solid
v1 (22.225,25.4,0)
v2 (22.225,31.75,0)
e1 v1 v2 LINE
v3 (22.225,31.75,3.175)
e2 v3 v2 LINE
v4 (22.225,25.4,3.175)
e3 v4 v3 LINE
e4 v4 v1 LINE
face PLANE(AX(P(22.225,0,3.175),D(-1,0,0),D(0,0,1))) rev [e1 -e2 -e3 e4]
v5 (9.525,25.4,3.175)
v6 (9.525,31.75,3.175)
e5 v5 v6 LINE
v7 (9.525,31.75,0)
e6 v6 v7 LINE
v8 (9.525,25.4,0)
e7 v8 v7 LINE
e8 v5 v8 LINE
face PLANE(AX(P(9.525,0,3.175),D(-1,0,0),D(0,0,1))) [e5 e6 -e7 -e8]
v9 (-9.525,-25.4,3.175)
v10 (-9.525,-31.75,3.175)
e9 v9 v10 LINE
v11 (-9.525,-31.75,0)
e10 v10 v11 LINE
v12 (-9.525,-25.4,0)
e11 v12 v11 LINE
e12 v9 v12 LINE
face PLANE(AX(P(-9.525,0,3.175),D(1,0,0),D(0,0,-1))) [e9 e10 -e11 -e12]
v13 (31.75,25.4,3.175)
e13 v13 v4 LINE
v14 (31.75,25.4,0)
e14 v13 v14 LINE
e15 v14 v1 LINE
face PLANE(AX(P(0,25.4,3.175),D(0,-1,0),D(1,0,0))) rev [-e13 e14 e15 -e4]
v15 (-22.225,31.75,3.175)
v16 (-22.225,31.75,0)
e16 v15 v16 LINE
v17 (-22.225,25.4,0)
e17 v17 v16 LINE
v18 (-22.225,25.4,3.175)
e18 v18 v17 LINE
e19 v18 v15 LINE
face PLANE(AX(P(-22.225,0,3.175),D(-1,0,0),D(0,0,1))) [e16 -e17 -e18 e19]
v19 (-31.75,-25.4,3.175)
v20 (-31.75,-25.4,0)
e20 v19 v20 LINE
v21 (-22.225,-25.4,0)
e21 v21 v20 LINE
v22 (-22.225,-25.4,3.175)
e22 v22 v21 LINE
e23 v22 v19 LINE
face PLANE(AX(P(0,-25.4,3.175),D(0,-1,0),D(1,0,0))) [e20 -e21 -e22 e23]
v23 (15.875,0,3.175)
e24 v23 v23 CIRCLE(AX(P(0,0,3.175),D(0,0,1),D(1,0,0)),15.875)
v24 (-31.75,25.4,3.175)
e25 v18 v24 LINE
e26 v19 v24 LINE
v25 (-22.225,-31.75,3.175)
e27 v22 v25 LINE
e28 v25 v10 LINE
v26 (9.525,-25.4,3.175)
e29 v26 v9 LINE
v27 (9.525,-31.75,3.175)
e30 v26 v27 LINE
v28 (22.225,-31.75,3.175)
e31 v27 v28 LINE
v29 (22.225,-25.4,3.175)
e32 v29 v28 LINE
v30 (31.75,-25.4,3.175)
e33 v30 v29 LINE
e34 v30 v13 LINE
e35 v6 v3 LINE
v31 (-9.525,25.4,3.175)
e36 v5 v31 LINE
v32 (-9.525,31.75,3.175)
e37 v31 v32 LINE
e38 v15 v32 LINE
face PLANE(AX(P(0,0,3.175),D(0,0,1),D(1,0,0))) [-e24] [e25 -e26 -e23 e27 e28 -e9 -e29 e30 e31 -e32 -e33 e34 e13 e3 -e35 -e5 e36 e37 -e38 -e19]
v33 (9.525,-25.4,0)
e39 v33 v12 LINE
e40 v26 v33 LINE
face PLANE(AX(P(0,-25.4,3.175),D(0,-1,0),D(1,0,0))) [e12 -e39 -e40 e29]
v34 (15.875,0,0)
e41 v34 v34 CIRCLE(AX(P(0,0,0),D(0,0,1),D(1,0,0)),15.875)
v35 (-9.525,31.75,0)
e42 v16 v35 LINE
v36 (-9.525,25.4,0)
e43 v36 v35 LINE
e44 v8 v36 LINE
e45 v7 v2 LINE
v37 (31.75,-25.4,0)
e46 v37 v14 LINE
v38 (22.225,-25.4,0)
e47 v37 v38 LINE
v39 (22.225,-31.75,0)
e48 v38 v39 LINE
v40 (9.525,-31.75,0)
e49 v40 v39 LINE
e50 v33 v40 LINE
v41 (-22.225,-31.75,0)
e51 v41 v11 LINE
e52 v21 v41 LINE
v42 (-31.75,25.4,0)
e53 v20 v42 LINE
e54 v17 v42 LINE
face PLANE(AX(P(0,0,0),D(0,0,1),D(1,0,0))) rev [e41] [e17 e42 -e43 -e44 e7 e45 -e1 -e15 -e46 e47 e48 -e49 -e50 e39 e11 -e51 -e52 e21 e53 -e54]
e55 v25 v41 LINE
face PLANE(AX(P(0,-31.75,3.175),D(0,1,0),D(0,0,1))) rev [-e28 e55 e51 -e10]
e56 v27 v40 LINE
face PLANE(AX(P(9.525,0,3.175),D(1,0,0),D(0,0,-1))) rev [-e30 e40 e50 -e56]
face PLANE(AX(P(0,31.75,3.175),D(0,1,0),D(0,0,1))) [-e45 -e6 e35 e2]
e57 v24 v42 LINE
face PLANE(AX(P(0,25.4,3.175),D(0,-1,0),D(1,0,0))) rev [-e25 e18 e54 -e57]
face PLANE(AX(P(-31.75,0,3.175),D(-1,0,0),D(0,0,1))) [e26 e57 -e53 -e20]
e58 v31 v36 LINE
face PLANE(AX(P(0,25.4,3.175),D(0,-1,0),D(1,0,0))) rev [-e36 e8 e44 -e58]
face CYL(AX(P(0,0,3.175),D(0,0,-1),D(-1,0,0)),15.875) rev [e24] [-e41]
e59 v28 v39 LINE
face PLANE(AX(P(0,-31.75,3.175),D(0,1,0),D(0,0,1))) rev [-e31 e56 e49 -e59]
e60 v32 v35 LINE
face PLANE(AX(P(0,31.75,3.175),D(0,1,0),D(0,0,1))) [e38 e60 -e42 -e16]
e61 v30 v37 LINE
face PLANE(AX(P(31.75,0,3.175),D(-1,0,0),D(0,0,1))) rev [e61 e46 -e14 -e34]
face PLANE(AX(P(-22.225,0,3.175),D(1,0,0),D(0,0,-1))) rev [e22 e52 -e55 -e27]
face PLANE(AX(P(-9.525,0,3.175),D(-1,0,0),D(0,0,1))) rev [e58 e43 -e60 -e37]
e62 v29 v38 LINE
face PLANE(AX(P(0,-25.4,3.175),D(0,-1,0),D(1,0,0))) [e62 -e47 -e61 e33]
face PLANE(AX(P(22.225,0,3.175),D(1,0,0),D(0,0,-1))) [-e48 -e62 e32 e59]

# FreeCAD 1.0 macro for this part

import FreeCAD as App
import Part
import Sketcher
Q = App.Units.Quantity

doc = App.newDocument("Part")
params = doc.addObject("Spreadsheet::Sheet", "Params")
for row, (alias, value) in enumerate([
    ("sketch1_diameter", "1.25 in"),
    ("sketch1_height", "2 in"),
    ("sketch1_width", "0.5 in"),
    ("sketch1_width2", "0.75 in"),
    ("sketch1_height2", "0.25 in"),
    ("pad1_length", "0.125 in"),
], start=1):
    params.set(f"A{row}", alias)
    params.set(f"B{row}", "=" + value)
    params.setAlias(f"B{row}", alias)

body = doc.addObject("PartDesign::Body", "Body")

sketch1 = doc.addObject("Sketcher::SketchObject", "Sketch")
body.addObject(sketch1)
sketch1.AttachmentSupport = (doc.XY_Plane, [""])
sketch1.MapMode = "FlatFace"
sketch1.addGeometry(Part.LineSegment(App.Vector(-22.225, 31.75, 0), App.Vector(-22.225, 25.4, 0)), False)
sketch1.addGeometry(Part.LineSegment(App.Vector(-22.225, 25.4, 0), App.Vector(-31.75, 25.4, 0)), False)
sketch1.addGeometry(Part.LineSegment(App.Vector(-31.75, 25.4, 0), App.Vector(-31.75, -25.4, 0)), False)
sketch1.addGeometry(Part.LineSegment(App.Vector(-31.75, -25.4, 0), App.Vector(-22.225, -25.4, 0)), False)
sketch1.addGeometry(Part.LineSegment(App.Vector(-22.225, -25.4, 0), App.Vector(-22.225, -31.75, 0)), False)
sketch1.addGeometry(Part.LineSegment(App.Vector(-22.225, -31.75, 0), App.Vector(-9.525, -31.75, 0)), False)
sketch1.addGeometry(Part.LineSegment(App.Vector(-9.525, -31.75, 0), App.Vector(-9.525, -25.4, 0)), False)
sketch1.addGeometry(Part.LineSegment(App.Vector(-9.525, -25.4, 0), App.Vector(9.525, -25.4, 0)), False)
sketch1.addGeometry(Part.LineSegment(App.Vector(9.525, -25.4, 0), App.Vector(9.525, -31.75, 0)), False)
sketch1.addGeometry(Part.LineSegment(App.Vector(9.525, -31.75, 0), App.Vector(22.225, -31.75, 0)), False)
sketch1.addGeometry(Part.LineSegment(App.Vector(22.225, -31.75, 0), App.Vector(22.225, -25.4, 0)), False)
sketch1.addGeometry(Part.LineSegment(App.Vector(22.225, -25.4, 0), App.Vector(31.75, -25.4, 0)), False)
sketch1.addGeometry(Part.LineSegment(App.Vector(31.75, -25.4, 0), App.Vector(31.75, 25.4, 0)), False)
sketch1.addGeometry(Part.LineSegment(App.Vector(31.75, 25.4, 0), App.Vector(22.225, 25.4, 0)), False)
sketch1.addGeometry(Part.LineSegment(App.Vector(22.225, 25.4, 0), App.Vector(22.225, 31.75, 0)), False)
sketch1.addGeometry(Part.LineSegment(App.Vector(22.225, 31.75, 0), App.Vector(9.525, 31.75, 0)), False)
sketch1.addGeometry(Part.LineSegment(App.Vector(9.525, 31.75, 0), App.Vector(9.525, 25.4, 0)), False)
sketch1.addGeometry(Part.LineSegment(App.Vector(9.525, 25.4, 0), App.Vector(-9.525, 25.4, 0)), False)
sketch1.addGeometry(Part.LineSegment(App.Vector(-9.525, 25.4, 0), App.Vector(-9.525, 31.75, 0)), False)
sketch1.addGeometry(Part.LineSegment(App.Vector(-9.525, 31.75, 0), App.Vector(-22.225, 31.75, 0)), False)
sketch1.addGeometry(Part.Circle(App.Vector(0, 0, 0), App.Vector(0, 0, 1), 15.875), False)
sketch1.addConstraint(Sketcher.Constraint("Coincident", 0, 2, 1, 1))
sketch1.addConstraint(Sketcher.Constraint("Coincident", 1, 2, 2, 1))
sketch1.addConstraint(Sketcher.Constraint("Coincident", 2, 2, 3, 1))
sketch1.addConstraint(Sketcher.Constraint("Coincident", 3, 2, 4, 1))
sketch1.addConstraint(Sketcher.Constraint("Coincident", 4, 2, 5, 1))
sketch1.addConstraint(Sketcher.Constraint("Coincident", 5, 2, 6, 1))
sketch1.addConstraint(Sketcher.Constraint("Coincident", 6, 2, 7, 1))
sketch1.addConstraint(Sketcher.Constraint("Coincident", 7, 2, 8, 1))
sketch1.addConstraint(Sketcher.Constraint("Coincident", 8, 2, 9, 1))
sketch1.addConstraint(Sketcher.Constraint("Coincident", 9, 2, 10, 1))
sketch1.addConstraint(Sketcher.Constraint("Coincident", 10, 2, 11, 1))
sketch1.addConstraint(Sketcher.Constraint("Coincident", 11, 2, 12, 1))
sketch1.addConstraint(Sketcher.Constraint("Coincident", 12, 2, 13, 1))
sketch1.addConstraint(Sketcher.Constraint("Coincident", 13, 2, 14, 1))
sketch1.addConstraint(Sketcher.Constraint("Coincident", 14, 2, 15, 1))
sketch1.addConstraint(Sketcher.Constraint("Coincident", 15, 2, 16, 1))
sketch1.addConstraint(Sketcher.Constraint("Coincident", 16, 2, 17, 1))
sketch1.addConstraint(Sketcher.Constraint("Coincident", 17, 2, 18, 1))
sketch1.addConstraint(Sketcher.Constraint("Coincident", 18, 2, 19, 1))
sketch1.addConstraint(Sketcher.Constraint("Coincident", 19, 2, 0, 1))
sketch1.addConstraint(Sketcher.Constraint("Vertical", 0))
sketch1.addConstraint(Sketcher.Constraint("Horizontal", 1))
sketch1.addConstraint(Sketcher.Constraint("Vertical", 2))
sketch1.addConstraint(Sketcher.Constraint("Horizontal", 3))
sketch1.addConstraint(Sketcher.Constraint("Vertical", 4))
sketch1.addConstraint(Sketcher.Constraint("Horizontal", 5))
sketch1.addConstraint(Sketcher.Constraint("Vertical", 6))
sketch1.addConstraint(Sketcher.Constraint("Horizontal", 7))
sketch1.addConstraint(Sketcher.Constraint("Vertical", 8))
sketch1.addConstraint(Sketcher.Constraint("Horizontal", 9))
sketch1.addConstraint(Sketcher.Constraint("Vertical", 10))
sketch1.addConstraint(Sketcher.Constraint("Horizontal", 11))
sketch1.addConstraint(Sketcher.Constraint("Vertical", 12))
sketch1.addConstraint(Sketcher.Constraint("Horizontal", 13))
sketch1.addConstraint(Sketcher.Constraint("Vertical", 14))
sketch1.addConstraint(Sketcher.Constraint("Horizontal", 15))
sketch1.addConstraint(Sketcher.Constraint("Vertical", 16))
sketch1.addConstraint(Sketcher.Constraint("Horizontal", 17))
sketch1.addConstraint(Sketcher.Constraint("Vertical", 18))
sketch1.addConstraint(Sketcher.Constraint("Horizontal", 19))
sketch1.addConstraint(Sketcher.Constraint("Coincident", 20, 3, -1, 1))
sketch1.addConstraint(Sketcher.Constraint("Symmetric", 0, 2, 10, 2, -1, 1))
sketch1.addConstraint(Sketcher.Constraint("Symmetric", 2, 2, 12, 2, -1, 1))
sketch1.addConstraint(Sketcher.Constraint("Symmetric", 4, 2, 14, 2, -1, 1))
sketch1.addConstraint(Sketcher.Constraint("Symmetric", 6, 2, 16, 2, -1, 1))
sketch1.addConstraint(Sketcher.Constraint("Symmetric", 8, 2, 18, 2, -1, 1))
sketch1.addConstraint(Sketcher.Constraint("Symmetric", 5, 2, 8, 2, -2))
sketch1.addConstraint(Sketcher.Constraint("Symmetric", 3, 2, 10, 2, -2))
sketch1.addConstraint(Sketcher.Constraint("Horizontal", 3, 2, 6, 2))
sketch1.addConstraint(Sketcher.Constraint("Diameter", 20, Q("1.25 in")))
sketch1.addConstraint(Sketcher.Constraint("DistanceY", 2, 2, 2, 1, Q("2 in")))
sketch1.addConstraint(Sketcher.Constraint("DistanceX", 5, 1, 5, 2, Q("0.5 in")))
sketch1.addConstraint(Sketcher.Constraint("DistanceX", 7, 1, 7, 2, Q("0.75 in")))
sketch1.addConstraint(Sketcher.Constraint("DistanceY", 0, 2, 0, 1, Q("0.25 in")))
sketch1.addConstraint(Sketcher.Constraint("DistanceX", 1, 2, 1, 1, Q("0.375 in")))
sketch1.setExpression("Constraints[49]", "Params.sketch1_diameter")
sketch1.setExpression("Constraints[50]", "Params.sketch1_height")
sketch1.setExpression("Constraints[51]", "Params.sketch1_width")
sketch1.setExpression("Constraints[52]", "Params.sketch1_width2")
sketch1.setExpression("Constraints[53]", "Params.sketch1_height2")
pad1 = doc.addObject("PartDesign::Pad", "Pad")
body.addObject(pad1)
pad1.Profile = sketch1
pad1.setExpression("Length", "Params.pad1_length")

doc.recompute()
